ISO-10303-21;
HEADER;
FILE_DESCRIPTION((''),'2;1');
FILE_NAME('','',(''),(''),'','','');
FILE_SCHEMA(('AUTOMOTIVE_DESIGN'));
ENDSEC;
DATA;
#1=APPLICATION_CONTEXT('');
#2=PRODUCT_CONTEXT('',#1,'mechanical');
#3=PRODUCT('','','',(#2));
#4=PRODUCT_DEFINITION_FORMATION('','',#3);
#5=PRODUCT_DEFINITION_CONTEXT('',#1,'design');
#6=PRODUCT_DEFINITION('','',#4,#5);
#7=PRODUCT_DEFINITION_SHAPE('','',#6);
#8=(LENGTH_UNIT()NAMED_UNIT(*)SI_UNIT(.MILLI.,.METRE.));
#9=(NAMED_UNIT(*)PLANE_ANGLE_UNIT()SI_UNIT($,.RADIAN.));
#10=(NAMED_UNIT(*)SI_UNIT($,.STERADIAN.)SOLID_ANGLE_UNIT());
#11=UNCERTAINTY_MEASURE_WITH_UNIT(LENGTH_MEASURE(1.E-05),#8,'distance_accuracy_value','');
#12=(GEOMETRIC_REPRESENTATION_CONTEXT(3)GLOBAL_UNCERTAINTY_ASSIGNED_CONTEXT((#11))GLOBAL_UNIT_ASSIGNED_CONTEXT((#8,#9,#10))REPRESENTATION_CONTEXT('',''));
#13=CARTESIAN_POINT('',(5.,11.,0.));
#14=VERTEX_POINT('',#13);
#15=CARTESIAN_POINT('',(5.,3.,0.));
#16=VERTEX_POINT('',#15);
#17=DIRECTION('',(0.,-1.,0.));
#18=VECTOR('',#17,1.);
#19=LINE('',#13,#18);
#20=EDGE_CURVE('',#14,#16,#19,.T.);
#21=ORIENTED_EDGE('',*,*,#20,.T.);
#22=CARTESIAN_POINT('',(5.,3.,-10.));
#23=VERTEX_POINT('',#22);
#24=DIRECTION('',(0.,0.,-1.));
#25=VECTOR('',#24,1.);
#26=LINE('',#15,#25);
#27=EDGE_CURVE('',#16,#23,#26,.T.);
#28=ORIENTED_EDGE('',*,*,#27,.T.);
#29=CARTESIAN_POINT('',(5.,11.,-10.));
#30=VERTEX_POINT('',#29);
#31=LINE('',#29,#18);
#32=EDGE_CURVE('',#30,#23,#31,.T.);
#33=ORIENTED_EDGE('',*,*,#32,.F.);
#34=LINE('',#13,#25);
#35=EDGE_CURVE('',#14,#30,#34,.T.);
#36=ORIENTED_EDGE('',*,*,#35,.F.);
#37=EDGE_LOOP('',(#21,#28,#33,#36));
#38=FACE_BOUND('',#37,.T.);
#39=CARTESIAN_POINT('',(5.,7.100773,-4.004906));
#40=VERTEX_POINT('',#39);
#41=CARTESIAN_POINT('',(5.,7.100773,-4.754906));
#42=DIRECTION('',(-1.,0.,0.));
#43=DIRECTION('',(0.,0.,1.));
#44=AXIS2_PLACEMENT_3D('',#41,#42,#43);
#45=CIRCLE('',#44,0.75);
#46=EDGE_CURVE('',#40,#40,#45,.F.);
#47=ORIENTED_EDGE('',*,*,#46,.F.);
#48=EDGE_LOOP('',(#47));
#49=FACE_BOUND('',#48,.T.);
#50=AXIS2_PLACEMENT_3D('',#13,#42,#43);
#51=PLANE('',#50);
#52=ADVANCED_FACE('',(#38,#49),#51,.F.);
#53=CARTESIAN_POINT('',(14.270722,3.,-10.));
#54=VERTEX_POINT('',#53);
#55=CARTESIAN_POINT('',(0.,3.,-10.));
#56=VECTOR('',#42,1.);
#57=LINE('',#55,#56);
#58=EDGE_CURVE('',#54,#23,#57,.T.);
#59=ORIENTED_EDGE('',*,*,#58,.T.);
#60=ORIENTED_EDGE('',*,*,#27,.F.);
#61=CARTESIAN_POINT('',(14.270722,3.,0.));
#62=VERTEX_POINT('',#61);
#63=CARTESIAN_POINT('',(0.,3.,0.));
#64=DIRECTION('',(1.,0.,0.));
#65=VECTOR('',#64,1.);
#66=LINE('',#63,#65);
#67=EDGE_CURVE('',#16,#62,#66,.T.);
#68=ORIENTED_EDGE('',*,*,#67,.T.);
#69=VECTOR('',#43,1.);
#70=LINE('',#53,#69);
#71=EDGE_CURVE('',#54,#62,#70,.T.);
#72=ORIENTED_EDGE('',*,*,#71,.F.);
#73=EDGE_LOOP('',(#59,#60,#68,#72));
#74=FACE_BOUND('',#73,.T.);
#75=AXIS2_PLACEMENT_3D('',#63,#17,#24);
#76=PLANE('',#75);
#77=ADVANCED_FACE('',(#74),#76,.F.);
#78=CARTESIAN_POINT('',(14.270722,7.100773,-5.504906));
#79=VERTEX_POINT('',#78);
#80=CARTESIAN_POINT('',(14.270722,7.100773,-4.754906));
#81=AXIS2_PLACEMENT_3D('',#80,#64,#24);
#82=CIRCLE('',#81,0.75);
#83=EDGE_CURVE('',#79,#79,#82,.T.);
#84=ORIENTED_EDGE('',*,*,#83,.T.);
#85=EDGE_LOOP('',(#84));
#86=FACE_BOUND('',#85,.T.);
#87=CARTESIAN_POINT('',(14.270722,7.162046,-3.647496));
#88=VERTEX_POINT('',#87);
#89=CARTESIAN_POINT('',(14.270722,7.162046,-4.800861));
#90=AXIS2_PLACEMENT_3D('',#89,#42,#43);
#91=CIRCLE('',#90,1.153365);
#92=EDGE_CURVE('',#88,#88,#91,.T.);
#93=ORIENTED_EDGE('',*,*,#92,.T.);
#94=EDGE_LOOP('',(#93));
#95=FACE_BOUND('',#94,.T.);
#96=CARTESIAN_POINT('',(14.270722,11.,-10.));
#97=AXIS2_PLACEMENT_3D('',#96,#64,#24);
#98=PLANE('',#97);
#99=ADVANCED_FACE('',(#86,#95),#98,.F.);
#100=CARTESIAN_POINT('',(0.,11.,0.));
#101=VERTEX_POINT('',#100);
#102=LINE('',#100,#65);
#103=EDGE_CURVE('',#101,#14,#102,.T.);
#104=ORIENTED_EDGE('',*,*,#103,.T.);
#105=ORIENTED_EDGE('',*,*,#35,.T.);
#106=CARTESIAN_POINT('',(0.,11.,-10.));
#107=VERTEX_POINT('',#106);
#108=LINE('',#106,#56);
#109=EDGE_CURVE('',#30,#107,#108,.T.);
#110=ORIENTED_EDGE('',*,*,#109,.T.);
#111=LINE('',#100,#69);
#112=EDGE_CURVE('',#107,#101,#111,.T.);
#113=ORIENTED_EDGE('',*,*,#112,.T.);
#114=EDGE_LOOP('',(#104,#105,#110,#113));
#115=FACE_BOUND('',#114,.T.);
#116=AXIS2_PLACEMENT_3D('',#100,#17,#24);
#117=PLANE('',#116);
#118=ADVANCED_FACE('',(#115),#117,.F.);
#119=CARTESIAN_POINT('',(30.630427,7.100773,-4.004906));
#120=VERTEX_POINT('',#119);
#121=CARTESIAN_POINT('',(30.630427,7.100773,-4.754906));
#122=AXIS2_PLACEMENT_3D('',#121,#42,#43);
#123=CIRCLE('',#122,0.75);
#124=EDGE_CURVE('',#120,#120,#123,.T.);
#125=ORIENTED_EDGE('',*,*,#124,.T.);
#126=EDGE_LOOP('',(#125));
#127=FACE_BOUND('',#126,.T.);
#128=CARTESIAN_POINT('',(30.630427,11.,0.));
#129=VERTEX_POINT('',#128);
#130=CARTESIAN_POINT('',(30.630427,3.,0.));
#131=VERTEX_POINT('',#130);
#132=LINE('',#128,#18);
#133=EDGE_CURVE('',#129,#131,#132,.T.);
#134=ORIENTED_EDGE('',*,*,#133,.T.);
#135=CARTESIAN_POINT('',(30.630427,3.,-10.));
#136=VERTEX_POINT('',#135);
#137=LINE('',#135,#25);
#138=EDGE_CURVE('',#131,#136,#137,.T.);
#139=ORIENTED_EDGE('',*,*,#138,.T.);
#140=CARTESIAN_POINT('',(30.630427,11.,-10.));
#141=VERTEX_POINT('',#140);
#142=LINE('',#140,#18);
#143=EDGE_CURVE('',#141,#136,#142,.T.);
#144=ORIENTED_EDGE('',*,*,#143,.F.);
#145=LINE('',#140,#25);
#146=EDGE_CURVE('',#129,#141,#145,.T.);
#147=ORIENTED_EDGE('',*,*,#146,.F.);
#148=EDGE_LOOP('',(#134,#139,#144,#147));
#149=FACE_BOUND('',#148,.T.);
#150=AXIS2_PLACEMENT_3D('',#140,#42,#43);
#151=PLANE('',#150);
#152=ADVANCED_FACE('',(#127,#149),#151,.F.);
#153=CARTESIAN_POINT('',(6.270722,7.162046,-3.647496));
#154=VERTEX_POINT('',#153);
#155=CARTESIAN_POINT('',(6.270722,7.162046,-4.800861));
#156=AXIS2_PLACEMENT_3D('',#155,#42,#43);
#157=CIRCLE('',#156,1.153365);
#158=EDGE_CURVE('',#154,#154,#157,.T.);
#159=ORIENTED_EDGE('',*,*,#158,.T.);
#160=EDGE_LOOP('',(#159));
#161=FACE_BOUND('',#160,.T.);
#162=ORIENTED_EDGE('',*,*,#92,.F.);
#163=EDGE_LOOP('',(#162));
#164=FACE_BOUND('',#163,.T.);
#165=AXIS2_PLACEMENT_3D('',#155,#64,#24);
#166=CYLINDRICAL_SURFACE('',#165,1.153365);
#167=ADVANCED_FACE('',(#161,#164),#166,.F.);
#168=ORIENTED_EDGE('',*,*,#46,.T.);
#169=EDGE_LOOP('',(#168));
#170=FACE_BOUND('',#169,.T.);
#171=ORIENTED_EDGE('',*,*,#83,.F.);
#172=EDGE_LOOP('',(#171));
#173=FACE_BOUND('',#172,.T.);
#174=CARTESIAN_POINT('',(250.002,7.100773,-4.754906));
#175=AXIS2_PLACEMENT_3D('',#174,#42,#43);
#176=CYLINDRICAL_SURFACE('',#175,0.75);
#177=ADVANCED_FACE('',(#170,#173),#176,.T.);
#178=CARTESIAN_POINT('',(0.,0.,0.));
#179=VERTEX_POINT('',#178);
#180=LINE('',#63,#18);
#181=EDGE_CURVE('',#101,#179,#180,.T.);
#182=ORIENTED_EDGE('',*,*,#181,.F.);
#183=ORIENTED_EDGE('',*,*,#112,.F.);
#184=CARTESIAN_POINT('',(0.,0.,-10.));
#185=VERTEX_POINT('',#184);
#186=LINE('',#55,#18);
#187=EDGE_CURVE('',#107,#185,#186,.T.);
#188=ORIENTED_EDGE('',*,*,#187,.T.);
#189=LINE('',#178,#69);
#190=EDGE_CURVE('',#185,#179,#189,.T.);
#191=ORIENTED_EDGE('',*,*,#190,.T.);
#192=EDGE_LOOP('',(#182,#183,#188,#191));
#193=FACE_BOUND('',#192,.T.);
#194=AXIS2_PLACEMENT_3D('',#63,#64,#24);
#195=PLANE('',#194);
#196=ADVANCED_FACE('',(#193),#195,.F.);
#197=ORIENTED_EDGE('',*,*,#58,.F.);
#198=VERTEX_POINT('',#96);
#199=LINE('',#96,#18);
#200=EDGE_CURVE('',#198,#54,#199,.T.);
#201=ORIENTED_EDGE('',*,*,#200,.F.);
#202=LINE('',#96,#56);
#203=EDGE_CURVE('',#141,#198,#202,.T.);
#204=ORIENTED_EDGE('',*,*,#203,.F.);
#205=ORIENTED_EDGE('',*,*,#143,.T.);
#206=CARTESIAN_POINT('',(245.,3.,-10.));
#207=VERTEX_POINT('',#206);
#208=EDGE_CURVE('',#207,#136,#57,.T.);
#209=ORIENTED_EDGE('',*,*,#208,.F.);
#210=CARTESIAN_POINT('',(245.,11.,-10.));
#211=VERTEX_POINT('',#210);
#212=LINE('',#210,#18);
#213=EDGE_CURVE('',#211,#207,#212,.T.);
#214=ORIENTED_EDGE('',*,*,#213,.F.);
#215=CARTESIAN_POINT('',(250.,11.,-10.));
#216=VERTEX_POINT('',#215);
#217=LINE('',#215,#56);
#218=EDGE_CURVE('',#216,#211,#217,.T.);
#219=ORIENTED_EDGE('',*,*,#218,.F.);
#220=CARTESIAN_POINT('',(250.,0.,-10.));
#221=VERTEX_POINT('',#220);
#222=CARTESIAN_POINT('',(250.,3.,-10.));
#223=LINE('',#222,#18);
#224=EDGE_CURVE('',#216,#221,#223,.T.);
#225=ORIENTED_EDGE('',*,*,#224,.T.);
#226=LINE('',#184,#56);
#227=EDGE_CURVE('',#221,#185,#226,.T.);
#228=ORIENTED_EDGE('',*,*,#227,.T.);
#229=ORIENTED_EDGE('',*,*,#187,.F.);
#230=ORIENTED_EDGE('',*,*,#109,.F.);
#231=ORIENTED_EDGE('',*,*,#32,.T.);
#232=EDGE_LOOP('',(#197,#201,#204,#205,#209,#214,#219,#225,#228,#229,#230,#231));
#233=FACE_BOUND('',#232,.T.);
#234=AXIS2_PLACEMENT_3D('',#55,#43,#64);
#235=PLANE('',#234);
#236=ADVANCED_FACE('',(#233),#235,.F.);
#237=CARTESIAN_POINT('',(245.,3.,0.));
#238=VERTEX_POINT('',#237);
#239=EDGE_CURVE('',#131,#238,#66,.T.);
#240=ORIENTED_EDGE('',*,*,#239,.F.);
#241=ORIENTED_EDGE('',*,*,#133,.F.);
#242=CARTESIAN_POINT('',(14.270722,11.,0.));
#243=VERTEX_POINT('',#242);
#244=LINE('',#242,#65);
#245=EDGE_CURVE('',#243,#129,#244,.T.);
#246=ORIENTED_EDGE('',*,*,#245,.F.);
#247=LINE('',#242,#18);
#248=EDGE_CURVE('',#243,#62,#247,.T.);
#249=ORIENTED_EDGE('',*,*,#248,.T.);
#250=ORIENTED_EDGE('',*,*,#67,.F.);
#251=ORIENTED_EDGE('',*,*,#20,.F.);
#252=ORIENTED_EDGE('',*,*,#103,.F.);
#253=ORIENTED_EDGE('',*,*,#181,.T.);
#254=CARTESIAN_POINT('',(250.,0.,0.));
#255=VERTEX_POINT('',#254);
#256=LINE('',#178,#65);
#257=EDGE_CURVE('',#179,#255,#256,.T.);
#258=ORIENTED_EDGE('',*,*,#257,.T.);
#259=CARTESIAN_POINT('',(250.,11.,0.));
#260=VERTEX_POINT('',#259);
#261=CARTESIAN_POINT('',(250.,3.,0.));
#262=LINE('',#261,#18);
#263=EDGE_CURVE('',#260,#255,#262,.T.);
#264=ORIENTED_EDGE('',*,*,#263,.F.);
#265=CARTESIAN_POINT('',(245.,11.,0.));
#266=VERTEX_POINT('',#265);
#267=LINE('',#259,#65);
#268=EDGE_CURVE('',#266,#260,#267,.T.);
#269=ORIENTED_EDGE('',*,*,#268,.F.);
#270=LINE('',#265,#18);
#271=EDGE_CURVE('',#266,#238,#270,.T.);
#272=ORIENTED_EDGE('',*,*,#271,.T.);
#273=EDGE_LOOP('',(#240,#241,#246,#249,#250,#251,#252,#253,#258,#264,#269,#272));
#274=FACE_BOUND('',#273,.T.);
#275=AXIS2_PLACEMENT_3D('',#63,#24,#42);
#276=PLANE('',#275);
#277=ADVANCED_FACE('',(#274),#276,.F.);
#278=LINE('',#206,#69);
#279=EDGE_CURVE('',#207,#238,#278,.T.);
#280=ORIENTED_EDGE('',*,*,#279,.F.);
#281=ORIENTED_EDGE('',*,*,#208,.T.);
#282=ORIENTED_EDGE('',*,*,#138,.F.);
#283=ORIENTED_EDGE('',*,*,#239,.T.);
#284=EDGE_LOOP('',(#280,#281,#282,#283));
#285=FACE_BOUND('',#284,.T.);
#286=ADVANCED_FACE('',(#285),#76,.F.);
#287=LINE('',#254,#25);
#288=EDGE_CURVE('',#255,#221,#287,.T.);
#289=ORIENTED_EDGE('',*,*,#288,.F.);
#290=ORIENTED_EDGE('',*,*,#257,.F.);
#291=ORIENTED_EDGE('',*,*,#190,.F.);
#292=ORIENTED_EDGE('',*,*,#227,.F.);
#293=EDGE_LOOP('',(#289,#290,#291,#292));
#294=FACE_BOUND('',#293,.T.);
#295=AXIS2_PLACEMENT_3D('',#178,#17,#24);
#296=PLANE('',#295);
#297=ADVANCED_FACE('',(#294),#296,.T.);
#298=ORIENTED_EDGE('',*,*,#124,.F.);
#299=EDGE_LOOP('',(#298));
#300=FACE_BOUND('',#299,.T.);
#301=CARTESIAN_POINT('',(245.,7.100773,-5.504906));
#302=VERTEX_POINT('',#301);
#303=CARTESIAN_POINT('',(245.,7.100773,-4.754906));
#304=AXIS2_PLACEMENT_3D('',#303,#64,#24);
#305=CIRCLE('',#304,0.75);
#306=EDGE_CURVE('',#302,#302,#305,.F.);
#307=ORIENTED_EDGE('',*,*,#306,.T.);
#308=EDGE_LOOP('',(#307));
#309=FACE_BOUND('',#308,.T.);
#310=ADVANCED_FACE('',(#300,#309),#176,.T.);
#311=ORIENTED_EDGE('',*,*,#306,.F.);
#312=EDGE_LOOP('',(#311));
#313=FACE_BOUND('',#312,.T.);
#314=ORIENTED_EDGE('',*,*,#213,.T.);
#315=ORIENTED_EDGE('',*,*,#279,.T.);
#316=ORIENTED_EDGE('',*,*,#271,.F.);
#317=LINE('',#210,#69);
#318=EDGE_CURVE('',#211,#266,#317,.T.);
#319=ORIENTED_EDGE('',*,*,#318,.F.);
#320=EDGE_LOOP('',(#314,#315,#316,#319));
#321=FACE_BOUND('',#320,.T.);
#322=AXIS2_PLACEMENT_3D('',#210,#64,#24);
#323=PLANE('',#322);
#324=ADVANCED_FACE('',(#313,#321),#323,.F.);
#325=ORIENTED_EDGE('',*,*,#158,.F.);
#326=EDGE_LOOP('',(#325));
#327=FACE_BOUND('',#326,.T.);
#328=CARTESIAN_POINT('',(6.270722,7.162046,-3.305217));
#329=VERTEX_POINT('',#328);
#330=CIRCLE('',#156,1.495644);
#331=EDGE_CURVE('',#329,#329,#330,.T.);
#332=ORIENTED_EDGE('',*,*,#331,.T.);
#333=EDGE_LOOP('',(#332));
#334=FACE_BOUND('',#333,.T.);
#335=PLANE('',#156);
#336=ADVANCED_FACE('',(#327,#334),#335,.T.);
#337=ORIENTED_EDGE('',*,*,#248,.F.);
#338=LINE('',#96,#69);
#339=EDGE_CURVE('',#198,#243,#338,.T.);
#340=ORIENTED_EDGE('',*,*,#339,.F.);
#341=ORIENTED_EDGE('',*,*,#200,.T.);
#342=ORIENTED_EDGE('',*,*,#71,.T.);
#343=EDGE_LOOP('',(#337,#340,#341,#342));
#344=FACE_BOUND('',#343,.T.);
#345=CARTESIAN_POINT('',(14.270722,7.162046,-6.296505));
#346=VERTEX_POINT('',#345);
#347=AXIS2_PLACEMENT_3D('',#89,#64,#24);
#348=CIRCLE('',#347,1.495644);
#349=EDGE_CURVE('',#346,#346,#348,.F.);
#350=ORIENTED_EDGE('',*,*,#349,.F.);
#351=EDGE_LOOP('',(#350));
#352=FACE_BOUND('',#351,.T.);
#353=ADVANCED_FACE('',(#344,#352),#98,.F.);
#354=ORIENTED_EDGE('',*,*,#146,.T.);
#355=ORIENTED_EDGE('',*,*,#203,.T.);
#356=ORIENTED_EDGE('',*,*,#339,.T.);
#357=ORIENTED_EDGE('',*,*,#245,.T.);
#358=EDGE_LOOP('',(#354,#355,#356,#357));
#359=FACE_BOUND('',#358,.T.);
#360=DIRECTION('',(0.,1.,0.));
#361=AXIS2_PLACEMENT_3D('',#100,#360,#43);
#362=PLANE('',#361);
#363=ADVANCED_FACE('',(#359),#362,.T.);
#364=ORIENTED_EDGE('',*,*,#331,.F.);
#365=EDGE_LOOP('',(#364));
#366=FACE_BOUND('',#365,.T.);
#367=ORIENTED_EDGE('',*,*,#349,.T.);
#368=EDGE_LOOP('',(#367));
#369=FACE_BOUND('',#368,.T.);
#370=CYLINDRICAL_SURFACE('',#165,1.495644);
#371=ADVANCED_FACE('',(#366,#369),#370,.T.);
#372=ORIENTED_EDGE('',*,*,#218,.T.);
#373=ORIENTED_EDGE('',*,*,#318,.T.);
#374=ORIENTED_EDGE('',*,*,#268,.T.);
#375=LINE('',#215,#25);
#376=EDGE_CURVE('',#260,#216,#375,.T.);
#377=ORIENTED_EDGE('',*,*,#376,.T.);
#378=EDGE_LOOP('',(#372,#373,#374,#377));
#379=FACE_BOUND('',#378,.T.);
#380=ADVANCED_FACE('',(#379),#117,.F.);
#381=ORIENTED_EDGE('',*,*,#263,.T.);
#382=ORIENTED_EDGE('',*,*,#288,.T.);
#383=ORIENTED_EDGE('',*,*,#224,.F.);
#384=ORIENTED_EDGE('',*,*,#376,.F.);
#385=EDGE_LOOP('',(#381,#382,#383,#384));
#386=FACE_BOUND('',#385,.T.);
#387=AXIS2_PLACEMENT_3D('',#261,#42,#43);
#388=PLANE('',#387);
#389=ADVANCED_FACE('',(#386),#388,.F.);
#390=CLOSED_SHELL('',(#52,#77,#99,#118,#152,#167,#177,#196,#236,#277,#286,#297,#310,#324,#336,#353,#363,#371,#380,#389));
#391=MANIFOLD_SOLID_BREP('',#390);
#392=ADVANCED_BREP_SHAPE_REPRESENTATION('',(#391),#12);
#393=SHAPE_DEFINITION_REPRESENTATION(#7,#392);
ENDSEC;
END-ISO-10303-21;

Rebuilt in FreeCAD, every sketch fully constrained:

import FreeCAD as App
import Part
import Sketcher
from FreeCAD import Vector


def add_polygon(sketch, points):
    """Adds a closed chain of lines whose ends are joined by coincident constraints."""
    first, n = sketch.GeometryCount, len(points)
    for a, b in zip(points, points[1:] + points[:1]):
        sketch.addGeometry(Part.LineSegment(App.Vector(*a, 0), App.Vector(*b, 0)), False)
    for i in range(n):
        sketch.addConstraint(Sketcher.Constraint("Coincident", first + i, 2, first + (i + 1) % n, 1))

doc = App.newDocument("Part")
body = doc.addObject("PartDesign::Body", "Body")

sketch1 = body.newObject("Sketcher::SketchObject", "Sketch")
sketch1.AttachmentSupport = (doc.getObject("XZ_Plane"), [""])
sketch1.MapMode = "FlatFace"
add_polygon(sketch1, [(0, -10), (0, 0), (250, 0), (250, -10)])
sketch1.addConstraint([
    Sketcher.Constraint("Vertical", 0),
    Sketcher.Constraint("Horizontal", 1),
    Sketcher.Constraint("Vertical", 2),
    Sketcher.Constraint("Horizontal", 3),
    Sketcher.Constraint("Coincident", 0, 2, -1, 1),
    Sketcher.Constraint("DistanceX", 1, 1, 1, 2, 250.0),
    Sketcher.Constraint("DistanceY", 0, 1, 0, 2, 10.0),
])
pad1 = body.newObject("PartDesign::Pad", "Pad")
pad1.Profile = sketch1
pad1.Length = 3
pad1.Reversed = True

sketch2 = body.newObject("Sketcher::SketchObject", "Sketch001")
sketch2.AttachmentSupport = (doc.getObject("XZ_Plane"), [""])
sketch2.MapMode = "FlatFace"
sketch2.AttachmentOffset = App.Placement(Vector(0, 0, -3), App.Rotation())
add_polygon(sketch2, [(0, -10), (0, 0), (5, 0), (5, -10)])
add_polygon(sketch2, [(245, -10), (245, 0), (250, 0), (250, -10)])
sketch2.addConstraint([
    Sketcher.Constraint("Vertical", 0),
    Sketcher.Constraint("Horizontal", 1),
    Sketcher.Constraint("Vertical", 2),
    Sketcher.Constraint("Horizontal", 3),
    Sketcher.Constraint("Vertical", 4),
    Sketcher.Constraint("Horizontal", 5),
    Sketcher.Constraint("Vertical", 6),
    Sketcher.Constraint("Horizontal", 7),
    Sketcher.Constraint("Coincident", 0, 2, -1, 1),
    Sketcher.Constraint("PointOnObject", 4, 2, -1),
    Sketcher.Constraint("Horizontal", 3, 2, 6, 2),
    Sketcher.Constraint("Equal", 3, 5),
    Sketcher.Constraint("DistanceX", 1, 1, 1, 2, 5.0),
    Sketcher.Constraint("DistanceY", 0, 1, 0, 2, 10.0),
    Sketcher.Constraint("DistanceX", -1, 1, 4, 2, 245.0),
])
pad2 = body.newObject("PartDesign::Pad", "Pad001")
pad2.Profile = sketch2
pad2.Length = 8
pad2.Reversed = True

sketch3 = body.newObject("Sketcher::SketchObject", "Sketch002")
sketch3.AttachmentSupport = (doc.getObject("YZ_Plane"), [""])
sketch3.MapMode = "FlatFace"
sketch3.AttachmentOffset = App.Placement(Vector(0, 0, 5), App.Rotation())
sketch3.addGeometry(Part.Circle(Vector(7.1, -4.8, 0), Vector(0, 0, 1), 0.8), False)
sketch3.addConstraint([
    Sketcher.Constraint("Diameter", 0, 1.5),
    Sketcher.Constraint("DistanceX", -1, 1, 0, 3, 7.100773),
    Sketcher.Constraint("DistanceY", 0, 3, -1, 1, 4.754906),
])
pad3 = body.newObject("PartDesign::Pad", "Pad002")
pad3.Profile = sketch3
pad3.Type = "UpToFirst"

sketch4 = body.newObject("Sketcher::SketchObject", "Sketch003")
sketch4.AttachmentSupport = (doc.getObject("XZ_Plane"), [""])
sketch4.MapMode = "FlatFace"
sketch4.AttachmentOffset = App.Placement(Vector(0, 0, -3), App.Rotation())
add_polygon(sketch4, [(14, -10), (14, 0), (31, 0), (31, -10)])
sketch4.addConstraint([
    Sketcher.Constraint("Vertical", 0),
    Sketcher.Constraint("Horizontal", 1),
    Sketcher.Constraint("Vertical", 2),
    Sketcher.Constraint("Horizontal", 3),
    Sketcher.Constraint("PointOnObject", 0, 2, -1),
    Sketcher.Constraint("DistanceY", 0, 1, 0, 2, 10.0),
    Sketcher.Constraint("DistanceX", 1, 1, 1, 2, 16.359705),
    Sketcher.Constraint("DistanceX", -1, 1, 0, 2, 14.270722),
])
pad4 = body.newObject("PartDesign::Pad", "Pad003")
pad4.Profile = sketch4
pad4.Length = 8
pad4.Reversed = True

sketch5 = body.newObject("Sketcher::SketchObject", "Sketch004")
sketch5.AttachmentSupport = (doc.getObject("YZ_Plane"), [""])
sketch5.MapMode = "FlatFace"
sketch5.AttachmentOffset = App.Placement(Vector(0, 0, 14.270722), App.Rotation())
sketch5.addGeometry([
    Part.Circle(Vector(7.2, -4.8, 0), Vector(0, 0, 1), 1.5),
    Part.Circle(Vector(7.2, -4.8, 0), Vector(0, 0, 1), 1.2),
], False)
sketch5.addConstraint([
    Sketcher.Constraint("Coincident", 1, 3, 0, 3),
    Sketcher.Constraint("Diameter", 1, 2.306729),
    Sketcher.Constraint("Diameter", 0, 2.991288),
    Sketcher.Constraint("DistanceY", 0, 3, -1, 1, 4.800861),
    Sketcher.Constraint("DistanceX", -1, 1, 0, 3, 7.162046),
])
pad5 = body.newObject("PartDesign::Pad", "Pad004")
pad5.Profile = sketch5
pad5.Length = 8
pad5.Reversed = True

doc.recompute()
